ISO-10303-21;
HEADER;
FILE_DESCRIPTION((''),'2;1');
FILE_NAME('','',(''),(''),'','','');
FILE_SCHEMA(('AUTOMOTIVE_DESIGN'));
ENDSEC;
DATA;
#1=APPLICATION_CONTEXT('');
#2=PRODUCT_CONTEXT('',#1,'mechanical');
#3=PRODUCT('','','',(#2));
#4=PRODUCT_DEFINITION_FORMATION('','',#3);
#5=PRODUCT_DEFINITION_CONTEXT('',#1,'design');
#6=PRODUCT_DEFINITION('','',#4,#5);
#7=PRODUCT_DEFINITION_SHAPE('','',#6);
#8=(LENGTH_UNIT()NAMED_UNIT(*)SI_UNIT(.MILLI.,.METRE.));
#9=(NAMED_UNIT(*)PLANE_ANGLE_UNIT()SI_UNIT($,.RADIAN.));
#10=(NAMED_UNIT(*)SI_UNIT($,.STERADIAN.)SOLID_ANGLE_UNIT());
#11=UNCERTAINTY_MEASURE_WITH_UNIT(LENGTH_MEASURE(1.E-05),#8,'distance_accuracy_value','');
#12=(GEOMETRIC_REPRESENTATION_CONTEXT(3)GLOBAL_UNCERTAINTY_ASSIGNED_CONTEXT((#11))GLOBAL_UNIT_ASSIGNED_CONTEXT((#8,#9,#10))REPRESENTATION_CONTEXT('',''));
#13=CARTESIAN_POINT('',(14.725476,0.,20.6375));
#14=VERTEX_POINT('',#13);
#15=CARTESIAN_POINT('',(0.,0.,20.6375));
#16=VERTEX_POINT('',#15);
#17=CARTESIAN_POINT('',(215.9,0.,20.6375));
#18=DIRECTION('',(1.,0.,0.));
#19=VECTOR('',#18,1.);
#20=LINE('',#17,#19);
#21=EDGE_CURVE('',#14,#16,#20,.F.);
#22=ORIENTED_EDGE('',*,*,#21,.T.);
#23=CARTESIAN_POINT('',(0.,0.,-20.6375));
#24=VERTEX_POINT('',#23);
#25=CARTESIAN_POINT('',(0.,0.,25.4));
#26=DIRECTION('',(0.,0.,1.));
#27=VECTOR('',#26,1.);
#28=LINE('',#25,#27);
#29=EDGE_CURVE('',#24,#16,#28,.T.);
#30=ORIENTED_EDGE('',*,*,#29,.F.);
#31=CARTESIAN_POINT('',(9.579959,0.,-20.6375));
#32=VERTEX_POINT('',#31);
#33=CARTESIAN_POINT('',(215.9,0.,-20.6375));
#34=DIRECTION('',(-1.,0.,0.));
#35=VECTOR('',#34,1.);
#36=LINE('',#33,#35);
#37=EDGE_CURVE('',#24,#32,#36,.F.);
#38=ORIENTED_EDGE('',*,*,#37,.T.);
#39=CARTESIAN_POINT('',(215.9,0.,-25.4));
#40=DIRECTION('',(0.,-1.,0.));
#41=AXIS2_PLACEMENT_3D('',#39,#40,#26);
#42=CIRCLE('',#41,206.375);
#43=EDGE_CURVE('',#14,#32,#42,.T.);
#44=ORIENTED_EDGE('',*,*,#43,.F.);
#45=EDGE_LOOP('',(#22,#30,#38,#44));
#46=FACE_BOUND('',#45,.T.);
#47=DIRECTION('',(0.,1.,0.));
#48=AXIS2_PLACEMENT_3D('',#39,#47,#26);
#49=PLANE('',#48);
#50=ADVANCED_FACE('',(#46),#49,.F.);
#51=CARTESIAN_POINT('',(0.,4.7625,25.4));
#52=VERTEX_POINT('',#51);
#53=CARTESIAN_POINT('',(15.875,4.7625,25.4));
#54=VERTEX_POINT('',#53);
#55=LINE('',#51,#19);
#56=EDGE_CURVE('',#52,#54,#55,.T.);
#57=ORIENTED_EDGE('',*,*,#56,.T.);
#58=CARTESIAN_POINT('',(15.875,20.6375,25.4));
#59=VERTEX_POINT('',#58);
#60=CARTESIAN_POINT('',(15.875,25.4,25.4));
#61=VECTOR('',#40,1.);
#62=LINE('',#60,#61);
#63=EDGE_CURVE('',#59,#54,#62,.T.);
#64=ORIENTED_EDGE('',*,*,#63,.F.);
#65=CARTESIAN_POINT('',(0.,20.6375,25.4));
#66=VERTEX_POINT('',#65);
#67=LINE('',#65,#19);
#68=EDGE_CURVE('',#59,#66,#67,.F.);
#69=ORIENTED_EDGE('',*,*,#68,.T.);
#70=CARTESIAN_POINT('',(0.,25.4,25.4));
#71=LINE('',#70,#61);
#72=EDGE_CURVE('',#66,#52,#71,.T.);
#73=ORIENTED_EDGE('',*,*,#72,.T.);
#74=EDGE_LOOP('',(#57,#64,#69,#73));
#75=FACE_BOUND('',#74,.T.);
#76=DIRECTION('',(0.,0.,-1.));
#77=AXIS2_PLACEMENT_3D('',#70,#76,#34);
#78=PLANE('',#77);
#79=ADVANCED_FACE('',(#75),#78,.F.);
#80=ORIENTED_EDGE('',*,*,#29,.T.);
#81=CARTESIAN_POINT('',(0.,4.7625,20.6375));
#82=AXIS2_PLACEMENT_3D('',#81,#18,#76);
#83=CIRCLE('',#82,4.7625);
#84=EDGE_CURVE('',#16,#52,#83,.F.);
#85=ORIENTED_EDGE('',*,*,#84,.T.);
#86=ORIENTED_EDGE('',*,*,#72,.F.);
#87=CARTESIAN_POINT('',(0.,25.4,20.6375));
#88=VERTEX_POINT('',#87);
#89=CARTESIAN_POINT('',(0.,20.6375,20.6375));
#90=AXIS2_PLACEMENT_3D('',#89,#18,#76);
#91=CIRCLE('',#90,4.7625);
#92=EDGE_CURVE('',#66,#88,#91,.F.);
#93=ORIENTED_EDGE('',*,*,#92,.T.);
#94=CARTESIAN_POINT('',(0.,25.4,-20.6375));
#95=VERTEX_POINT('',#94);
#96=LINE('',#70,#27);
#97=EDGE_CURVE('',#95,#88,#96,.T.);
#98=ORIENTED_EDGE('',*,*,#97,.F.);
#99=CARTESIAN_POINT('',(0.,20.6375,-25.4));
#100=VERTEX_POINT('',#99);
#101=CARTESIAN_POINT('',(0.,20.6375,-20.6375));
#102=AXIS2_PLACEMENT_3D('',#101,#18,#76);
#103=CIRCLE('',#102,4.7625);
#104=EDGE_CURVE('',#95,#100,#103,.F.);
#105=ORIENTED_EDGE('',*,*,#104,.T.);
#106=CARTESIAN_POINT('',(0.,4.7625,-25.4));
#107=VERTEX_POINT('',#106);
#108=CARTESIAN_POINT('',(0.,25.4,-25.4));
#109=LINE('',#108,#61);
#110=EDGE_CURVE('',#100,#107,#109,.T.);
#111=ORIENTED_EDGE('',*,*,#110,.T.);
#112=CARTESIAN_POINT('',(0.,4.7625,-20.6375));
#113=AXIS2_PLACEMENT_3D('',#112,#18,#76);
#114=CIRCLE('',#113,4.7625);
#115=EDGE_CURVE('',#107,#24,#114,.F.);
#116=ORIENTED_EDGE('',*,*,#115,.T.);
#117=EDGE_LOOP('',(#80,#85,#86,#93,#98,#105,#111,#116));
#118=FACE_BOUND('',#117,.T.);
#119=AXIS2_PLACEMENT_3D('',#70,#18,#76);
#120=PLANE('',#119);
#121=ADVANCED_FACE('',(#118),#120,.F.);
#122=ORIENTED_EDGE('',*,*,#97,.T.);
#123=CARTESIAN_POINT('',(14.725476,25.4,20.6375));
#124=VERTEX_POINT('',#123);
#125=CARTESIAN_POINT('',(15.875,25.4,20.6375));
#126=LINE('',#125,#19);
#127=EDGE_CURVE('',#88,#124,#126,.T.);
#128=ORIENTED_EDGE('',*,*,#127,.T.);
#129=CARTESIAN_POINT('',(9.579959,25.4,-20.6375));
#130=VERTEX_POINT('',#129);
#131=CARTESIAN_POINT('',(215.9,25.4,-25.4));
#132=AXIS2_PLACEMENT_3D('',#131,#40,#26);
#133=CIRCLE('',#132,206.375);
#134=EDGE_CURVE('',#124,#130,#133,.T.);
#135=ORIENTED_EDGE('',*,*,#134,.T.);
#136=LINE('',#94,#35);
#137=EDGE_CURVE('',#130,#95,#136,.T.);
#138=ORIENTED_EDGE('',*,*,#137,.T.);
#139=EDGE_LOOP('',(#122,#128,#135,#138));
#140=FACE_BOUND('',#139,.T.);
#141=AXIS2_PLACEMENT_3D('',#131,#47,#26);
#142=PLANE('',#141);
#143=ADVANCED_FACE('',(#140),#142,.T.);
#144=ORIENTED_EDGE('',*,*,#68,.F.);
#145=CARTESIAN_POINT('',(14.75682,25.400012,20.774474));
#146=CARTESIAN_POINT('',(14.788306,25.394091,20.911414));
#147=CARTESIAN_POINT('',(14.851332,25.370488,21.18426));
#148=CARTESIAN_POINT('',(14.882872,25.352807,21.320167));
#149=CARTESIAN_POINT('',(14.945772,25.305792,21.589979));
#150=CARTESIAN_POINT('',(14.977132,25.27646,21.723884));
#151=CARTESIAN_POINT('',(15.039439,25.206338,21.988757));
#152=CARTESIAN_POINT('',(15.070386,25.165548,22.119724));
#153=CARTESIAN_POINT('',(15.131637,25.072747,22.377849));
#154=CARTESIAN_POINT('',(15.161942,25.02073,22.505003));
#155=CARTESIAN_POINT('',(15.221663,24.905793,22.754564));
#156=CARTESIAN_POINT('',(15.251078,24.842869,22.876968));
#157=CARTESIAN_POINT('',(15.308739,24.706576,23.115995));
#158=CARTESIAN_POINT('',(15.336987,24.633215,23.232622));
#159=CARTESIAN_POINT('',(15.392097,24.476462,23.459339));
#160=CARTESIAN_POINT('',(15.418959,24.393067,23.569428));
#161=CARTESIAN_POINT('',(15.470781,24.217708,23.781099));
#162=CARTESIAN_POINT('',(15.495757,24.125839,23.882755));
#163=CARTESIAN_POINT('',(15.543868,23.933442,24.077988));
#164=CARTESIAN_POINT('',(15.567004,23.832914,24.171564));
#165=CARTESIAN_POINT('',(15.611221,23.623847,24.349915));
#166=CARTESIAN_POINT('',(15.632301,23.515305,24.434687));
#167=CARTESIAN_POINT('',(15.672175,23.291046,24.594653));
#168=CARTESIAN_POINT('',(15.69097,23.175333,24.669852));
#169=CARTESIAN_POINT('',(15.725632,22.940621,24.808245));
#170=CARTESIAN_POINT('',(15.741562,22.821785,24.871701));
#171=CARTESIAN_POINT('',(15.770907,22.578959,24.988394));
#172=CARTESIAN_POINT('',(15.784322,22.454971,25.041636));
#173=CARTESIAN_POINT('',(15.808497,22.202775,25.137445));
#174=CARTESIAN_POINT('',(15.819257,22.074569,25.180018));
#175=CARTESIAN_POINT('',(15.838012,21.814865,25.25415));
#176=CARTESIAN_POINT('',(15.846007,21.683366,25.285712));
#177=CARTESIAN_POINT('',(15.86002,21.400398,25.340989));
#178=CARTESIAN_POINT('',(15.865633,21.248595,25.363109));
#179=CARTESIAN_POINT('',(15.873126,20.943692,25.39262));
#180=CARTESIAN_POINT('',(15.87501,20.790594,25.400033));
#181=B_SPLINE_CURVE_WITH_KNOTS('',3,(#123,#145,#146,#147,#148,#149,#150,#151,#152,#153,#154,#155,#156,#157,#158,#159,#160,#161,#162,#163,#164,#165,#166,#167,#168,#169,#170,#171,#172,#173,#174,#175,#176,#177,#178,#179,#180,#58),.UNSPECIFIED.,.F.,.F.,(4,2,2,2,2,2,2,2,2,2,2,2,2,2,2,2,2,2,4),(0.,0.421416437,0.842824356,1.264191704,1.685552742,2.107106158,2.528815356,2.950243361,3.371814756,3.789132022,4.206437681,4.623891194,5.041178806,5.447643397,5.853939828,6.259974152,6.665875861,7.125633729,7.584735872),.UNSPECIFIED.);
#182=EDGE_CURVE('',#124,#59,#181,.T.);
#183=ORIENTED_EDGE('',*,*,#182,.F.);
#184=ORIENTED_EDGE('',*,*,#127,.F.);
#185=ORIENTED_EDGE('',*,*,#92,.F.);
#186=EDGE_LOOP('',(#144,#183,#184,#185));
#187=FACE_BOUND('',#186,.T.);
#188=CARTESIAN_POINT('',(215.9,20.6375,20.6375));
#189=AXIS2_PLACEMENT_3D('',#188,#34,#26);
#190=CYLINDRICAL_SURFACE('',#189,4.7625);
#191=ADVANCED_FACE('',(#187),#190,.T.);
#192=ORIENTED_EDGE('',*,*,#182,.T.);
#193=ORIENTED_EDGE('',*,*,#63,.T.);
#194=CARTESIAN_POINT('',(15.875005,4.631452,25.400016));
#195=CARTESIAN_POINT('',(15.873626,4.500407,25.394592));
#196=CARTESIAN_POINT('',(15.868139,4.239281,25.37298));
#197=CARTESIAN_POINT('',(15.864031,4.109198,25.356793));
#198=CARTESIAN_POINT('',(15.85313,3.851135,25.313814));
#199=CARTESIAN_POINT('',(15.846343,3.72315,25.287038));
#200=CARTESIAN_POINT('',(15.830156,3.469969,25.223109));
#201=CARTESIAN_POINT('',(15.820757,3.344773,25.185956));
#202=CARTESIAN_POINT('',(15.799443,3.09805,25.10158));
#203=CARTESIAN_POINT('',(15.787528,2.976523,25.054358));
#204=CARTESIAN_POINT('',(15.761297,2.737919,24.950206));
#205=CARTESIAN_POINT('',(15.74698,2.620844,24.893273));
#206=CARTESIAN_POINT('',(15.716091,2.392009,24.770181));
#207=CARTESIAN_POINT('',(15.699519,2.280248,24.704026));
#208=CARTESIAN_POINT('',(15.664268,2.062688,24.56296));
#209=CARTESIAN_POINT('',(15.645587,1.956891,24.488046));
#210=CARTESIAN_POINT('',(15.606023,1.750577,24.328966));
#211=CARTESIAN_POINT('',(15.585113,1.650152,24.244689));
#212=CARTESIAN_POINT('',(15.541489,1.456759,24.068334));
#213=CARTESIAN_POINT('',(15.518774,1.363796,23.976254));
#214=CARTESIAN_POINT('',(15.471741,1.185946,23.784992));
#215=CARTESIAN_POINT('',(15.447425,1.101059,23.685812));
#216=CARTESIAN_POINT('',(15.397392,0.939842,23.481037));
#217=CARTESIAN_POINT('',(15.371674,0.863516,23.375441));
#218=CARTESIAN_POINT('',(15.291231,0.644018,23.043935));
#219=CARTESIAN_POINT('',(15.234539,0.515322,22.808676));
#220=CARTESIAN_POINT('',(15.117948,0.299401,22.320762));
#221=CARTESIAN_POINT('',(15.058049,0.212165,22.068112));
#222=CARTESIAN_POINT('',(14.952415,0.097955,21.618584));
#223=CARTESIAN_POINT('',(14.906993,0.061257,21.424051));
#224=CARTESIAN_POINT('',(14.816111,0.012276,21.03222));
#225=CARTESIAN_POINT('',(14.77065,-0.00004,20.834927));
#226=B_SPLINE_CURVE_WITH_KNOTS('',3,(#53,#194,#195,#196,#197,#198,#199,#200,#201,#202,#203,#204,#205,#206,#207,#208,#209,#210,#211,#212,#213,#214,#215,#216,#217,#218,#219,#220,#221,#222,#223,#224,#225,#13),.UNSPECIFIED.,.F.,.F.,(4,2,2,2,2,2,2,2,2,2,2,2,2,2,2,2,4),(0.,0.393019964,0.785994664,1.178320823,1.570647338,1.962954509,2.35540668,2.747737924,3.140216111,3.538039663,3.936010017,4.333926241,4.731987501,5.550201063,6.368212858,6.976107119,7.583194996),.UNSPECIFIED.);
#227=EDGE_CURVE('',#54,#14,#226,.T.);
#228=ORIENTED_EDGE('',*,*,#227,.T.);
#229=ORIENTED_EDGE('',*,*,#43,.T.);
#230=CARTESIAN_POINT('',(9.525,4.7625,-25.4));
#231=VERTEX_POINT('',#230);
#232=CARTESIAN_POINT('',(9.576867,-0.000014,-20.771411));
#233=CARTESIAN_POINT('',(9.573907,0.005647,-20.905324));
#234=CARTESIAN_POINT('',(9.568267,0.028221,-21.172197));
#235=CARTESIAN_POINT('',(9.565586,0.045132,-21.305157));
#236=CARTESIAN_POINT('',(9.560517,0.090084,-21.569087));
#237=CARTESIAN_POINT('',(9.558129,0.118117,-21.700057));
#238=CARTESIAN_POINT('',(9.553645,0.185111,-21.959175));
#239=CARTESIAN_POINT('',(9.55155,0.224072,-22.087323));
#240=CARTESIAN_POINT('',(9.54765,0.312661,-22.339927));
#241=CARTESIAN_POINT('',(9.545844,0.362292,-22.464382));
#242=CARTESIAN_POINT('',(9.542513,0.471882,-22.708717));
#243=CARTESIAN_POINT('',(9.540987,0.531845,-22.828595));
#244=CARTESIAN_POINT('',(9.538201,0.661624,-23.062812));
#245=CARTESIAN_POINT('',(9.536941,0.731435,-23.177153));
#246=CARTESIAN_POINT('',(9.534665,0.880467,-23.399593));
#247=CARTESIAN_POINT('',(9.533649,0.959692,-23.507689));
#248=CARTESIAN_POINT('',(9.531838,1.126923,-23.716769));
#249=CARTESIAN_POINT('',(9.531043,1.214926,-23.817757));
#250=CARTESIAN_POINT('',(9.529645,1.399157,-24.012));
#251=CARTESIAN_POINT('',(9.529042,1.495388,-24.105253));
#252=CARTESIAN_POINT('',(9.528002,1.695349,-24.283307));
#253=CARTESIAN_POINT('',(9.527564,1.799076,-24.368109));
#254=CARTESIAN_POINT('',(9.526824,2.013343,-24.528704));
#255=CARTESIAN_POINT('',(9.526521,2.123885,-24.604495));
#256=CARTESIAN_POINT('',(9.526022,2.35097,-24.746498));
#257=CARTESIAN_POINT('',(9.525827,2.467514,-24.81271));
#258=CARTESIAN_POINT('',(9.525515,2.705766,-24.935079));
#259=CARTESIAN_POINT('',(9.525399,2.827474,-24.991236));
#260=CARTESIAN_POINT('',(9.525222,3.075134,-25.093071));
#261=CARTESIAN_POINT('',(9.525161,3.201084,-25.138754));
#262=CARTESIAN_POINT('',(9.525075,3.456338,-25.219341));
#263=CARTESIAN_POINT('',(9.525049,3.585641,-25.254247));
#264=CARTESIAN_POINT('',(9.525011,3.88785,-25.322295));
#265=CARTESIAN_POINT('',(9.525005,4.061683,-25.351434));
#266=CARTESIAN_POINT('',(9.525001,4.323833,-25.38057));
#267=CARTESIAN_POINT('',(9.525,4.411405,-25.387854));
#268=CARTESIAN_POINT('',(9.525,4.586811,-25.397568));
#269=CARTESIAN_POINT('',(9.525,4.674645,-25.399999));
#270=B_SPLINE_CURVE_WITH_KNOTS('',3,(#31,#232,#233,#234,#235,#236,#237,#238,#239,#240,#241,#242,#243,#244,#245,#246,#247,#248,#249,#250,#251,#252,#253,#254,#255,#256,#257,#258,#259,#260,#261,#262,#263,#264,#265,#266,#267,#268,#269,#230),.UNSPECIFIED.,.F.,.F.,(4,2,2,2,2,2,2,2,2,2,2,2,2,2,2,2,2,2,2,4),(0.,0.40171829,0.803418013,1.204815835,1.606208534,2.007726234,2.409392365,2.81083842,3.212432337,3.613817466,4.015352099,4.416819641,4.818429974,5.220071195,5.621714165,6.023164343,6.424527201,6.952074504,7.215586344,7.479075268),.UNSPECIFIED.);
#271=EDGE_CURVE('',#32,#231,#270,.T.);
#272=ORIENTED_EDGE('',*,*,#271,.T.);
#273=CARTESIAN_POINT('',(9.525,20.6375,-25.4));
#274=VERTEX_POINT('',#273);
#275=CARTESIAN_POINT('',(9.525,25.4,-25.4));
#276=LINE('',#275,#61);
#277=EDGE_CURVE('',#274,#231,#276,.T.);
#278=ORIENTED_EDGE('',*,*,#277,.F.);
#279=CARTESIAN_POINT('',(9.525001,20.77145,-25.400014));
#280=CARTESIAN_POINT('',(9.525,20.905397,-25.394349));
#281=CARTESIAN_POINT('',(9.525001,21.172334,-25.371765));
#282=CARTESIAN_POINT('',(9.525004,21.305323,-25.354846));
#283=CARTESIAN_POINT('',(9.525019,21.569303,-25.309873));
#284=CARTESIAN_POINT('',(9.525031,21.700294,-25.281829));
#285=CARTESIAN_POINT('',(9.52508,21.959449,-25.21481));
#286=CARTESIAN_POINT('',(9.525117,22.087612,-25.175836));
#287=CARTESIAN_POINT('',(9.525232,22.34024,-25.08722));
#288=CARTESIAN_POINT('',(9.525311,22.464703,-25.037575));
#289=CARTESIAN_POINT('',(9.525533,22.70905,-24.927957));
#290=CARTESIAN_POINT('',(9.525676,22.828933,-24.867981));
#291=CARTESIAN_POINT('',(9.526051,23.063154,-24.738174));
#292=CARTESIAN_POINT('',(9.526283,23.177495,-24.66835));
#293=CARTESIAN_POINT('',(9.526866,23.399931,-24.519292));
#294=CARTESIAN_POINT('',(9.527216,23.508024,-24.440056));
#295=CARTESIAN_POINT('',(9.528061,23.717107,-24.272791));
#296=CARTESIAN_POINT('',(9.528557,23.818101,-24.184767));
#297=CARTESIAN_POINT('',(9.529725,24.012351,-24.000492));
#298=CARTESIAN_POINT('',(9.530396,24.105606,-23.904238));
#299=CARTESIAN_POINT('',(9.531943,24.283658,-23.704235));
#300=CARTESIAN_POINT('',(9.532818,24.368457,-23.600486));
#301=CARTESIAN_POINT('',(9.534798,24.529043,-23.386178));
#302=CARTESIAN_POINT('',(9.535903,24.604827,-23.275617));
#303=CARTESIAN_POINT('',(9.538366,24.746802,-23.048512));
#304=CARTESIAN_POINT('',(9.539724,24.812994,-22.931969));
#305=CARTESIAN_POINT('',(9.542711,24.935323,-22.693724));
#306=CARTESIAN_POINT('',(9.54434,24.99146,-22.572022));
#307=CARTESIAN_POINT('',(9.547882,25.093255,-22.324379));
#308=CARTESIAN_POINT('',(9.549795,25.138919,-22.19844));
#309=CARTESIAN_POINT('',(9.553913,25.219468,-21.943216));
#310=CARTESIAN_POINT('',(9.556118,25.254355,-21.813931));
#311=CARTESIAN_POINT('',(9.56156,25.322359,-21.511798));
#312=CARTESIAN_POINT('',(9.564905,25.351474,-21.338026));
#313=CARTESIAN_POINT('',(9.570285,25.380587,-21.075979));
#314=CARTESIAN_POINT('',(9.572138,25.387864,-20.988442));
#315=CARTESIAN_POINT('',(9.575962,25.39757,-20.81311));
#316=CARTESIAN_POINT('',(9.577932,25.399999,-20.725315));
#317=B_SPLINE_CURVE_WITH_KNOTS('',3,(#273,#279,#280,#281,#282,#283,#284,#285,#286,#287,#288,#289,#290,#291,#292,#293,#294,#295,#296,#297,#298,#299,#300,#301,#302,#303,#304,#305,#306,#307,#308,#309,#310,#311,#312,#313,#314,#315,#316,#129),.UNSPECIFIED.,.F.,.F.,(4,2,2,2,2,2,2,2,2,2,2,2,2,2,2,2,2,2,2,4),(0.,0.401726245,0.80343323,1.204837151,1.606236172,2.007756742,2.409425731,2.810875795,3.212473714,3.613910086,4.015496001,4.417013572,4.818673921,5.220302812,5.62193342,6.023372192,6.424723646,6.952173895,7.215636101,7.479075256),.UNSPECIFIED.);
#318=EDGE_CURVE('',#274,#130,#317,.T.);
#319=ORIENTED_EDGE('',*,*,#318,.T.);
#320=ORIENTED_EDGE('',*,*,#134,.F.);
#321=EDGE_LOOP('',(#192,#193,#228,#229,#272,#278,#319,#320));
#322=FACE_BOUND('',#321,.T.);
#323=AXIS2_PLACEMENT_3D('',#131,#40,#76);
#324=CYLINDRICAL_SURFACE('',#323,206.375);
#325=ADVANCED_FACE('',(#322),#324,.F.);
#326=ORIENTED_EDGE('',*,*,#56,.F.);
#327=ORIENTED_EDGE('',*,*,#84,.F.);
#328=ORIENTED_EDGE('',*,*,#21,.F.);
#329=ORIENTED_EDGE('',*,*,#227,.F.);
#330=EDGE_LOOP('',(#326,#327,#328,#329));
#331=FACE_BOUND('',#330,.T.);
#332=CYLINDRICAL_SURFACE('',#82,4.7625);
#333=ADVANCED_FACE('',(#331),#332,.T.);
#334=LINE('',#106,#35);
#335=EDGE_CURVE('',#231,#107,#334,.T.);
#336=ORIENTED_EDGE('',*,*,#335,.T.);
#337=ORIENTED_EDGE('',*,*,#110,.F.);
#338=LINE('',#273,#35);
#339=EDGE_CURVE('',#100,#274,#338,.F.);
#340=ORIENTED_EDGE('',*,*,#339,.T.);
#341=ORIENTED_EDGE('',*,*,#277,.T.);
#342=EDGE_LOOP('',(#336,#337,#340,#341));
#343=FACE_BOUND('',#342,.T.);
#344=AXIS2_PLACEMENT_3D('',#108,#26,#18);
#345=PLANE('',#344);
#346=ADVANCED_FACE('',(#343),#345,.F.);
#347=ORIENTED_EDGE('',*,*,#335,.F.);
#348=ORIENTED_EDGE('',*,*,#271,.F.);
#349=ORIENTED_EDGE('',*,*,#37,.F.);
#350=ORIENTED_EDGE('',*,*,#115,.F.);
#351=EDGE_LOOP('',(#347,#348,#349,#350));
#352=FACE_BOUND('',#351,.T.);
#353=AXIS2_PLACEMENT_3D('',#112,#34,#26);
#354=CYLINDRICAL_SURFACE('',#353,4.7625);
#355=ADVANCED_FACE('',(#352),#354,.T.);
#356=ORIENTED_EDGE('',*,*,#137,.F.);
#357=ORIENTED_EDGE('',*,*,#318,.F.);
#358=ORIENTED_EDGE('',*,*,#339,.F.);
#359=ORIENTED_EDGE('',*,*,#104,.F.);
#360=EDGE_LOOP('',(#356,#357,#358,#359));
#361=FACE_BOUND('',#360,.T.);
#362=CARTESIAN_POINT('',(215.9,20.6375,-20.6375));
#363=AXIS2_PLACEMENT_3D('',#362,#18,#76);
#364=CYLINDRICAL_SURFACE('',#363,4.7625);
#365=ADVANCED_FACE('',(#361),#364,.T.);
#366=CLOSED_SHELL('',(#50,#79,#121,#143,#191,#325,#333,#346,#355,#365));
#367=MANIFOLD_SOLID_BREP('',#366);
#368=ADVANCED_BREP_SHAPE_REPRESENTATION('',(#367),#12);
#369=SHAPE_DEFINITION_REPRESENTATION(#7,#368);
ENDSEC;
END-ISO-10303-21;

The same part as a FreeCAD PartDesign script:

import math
import FreeCAD as App
import Part
import Sketcher
Q = App.Units.Quantity


def edges_at(feature, points):
    """Names of the edges that pass closest to the given points."""
    edges = feature.Shape.Edges
    near = lambda p: min(range(len(edges)), key=lambda i: edges[i].distToShape(Part.Vertex(*p))[0])
    return sorted({f"Edge{near(p) + 1}" for p in points})

doc = App.newDocument("Part")
body = doc.addObject("PartDesign::Body", "Body")

sketch1 = body.newObject("Sketcher::SketchObject", "Sketch")
sketch1.AttachmentSupport = (doc.getObject("XZ_Plane"), [""])
sketch1.MapMode = "FlatFace"
sketch1.addGeometry([
    Part.LineSegment(App.Vector(0, -25.4, 0), App.Vector(0, 25.4, 0)),
    Part.LineSegment(App.Vector(0, 25.4, 0), App.Vector(15.875, 25.4, 0)),
    Part.ArcOfCircle(Part.Circle(App.Vector(215.9, -25.4, 0), App.Vector(0, 0, 1), 206.375), math.radians(165.749967), math.radians(180)),
    Part.LineSegment(App.Vector(9.525, -25.4, 0), App.Vector(0, -25.4, 0)),
], False)
sketch1.addConstraint([
    Sketcher.Constraint("Coincident", 0, 2, 1, 1),
    Sketcher.Constraint("Coincident", 1, 2, 2, 1),
    Sketcher.Constraint("Coincident", 2, 2, 3, 1),
    Sketcher.Constraint("Coincident", 3, 2, 0, 1),
    Sketcher.Constraint("Vertical", 0),
    Sketcher.Constraint("Horizontal", 1),
    Sketcher.Constraint("Horizontal", 3),
    Sketcher.Constraint("Symmetric", 0, 2, 3, 2, -1, 1),
    Sketcher.Constraint("DistanceY", 0, 1, 0, 2, Q("2 in")),
    Sketcher.Constraint("DistanceY", 2, 3, -1, 1, Q("1 in")),
    Sketcher.Constraint("Radius", 2, Q("8.125 in")),
    Sketcher.Constraint("DistanceX", -1, 1, 2, 3, Q("8.5 in")),
])
pad1 = body.newObject("PartDesign::Pad", "Pad")
pad1.Profile = sketch1
pad1.Length = Q("1 in")
pad1.Reversed = True
doc.recompute()

fillet = body.newObject("PartDesign::Fillet", "Fillet")
fillet.Base = (pad1, edges_at(pad1, [
    (7.938, 25.4, 25.4),
    (4.763, 25.4, -25.4),
    (7.938, 0, 25.4),
    (4.763, 0, -25.4),
]))
fillet.Radius = Q("0.1875 in")

doc.recompute()
